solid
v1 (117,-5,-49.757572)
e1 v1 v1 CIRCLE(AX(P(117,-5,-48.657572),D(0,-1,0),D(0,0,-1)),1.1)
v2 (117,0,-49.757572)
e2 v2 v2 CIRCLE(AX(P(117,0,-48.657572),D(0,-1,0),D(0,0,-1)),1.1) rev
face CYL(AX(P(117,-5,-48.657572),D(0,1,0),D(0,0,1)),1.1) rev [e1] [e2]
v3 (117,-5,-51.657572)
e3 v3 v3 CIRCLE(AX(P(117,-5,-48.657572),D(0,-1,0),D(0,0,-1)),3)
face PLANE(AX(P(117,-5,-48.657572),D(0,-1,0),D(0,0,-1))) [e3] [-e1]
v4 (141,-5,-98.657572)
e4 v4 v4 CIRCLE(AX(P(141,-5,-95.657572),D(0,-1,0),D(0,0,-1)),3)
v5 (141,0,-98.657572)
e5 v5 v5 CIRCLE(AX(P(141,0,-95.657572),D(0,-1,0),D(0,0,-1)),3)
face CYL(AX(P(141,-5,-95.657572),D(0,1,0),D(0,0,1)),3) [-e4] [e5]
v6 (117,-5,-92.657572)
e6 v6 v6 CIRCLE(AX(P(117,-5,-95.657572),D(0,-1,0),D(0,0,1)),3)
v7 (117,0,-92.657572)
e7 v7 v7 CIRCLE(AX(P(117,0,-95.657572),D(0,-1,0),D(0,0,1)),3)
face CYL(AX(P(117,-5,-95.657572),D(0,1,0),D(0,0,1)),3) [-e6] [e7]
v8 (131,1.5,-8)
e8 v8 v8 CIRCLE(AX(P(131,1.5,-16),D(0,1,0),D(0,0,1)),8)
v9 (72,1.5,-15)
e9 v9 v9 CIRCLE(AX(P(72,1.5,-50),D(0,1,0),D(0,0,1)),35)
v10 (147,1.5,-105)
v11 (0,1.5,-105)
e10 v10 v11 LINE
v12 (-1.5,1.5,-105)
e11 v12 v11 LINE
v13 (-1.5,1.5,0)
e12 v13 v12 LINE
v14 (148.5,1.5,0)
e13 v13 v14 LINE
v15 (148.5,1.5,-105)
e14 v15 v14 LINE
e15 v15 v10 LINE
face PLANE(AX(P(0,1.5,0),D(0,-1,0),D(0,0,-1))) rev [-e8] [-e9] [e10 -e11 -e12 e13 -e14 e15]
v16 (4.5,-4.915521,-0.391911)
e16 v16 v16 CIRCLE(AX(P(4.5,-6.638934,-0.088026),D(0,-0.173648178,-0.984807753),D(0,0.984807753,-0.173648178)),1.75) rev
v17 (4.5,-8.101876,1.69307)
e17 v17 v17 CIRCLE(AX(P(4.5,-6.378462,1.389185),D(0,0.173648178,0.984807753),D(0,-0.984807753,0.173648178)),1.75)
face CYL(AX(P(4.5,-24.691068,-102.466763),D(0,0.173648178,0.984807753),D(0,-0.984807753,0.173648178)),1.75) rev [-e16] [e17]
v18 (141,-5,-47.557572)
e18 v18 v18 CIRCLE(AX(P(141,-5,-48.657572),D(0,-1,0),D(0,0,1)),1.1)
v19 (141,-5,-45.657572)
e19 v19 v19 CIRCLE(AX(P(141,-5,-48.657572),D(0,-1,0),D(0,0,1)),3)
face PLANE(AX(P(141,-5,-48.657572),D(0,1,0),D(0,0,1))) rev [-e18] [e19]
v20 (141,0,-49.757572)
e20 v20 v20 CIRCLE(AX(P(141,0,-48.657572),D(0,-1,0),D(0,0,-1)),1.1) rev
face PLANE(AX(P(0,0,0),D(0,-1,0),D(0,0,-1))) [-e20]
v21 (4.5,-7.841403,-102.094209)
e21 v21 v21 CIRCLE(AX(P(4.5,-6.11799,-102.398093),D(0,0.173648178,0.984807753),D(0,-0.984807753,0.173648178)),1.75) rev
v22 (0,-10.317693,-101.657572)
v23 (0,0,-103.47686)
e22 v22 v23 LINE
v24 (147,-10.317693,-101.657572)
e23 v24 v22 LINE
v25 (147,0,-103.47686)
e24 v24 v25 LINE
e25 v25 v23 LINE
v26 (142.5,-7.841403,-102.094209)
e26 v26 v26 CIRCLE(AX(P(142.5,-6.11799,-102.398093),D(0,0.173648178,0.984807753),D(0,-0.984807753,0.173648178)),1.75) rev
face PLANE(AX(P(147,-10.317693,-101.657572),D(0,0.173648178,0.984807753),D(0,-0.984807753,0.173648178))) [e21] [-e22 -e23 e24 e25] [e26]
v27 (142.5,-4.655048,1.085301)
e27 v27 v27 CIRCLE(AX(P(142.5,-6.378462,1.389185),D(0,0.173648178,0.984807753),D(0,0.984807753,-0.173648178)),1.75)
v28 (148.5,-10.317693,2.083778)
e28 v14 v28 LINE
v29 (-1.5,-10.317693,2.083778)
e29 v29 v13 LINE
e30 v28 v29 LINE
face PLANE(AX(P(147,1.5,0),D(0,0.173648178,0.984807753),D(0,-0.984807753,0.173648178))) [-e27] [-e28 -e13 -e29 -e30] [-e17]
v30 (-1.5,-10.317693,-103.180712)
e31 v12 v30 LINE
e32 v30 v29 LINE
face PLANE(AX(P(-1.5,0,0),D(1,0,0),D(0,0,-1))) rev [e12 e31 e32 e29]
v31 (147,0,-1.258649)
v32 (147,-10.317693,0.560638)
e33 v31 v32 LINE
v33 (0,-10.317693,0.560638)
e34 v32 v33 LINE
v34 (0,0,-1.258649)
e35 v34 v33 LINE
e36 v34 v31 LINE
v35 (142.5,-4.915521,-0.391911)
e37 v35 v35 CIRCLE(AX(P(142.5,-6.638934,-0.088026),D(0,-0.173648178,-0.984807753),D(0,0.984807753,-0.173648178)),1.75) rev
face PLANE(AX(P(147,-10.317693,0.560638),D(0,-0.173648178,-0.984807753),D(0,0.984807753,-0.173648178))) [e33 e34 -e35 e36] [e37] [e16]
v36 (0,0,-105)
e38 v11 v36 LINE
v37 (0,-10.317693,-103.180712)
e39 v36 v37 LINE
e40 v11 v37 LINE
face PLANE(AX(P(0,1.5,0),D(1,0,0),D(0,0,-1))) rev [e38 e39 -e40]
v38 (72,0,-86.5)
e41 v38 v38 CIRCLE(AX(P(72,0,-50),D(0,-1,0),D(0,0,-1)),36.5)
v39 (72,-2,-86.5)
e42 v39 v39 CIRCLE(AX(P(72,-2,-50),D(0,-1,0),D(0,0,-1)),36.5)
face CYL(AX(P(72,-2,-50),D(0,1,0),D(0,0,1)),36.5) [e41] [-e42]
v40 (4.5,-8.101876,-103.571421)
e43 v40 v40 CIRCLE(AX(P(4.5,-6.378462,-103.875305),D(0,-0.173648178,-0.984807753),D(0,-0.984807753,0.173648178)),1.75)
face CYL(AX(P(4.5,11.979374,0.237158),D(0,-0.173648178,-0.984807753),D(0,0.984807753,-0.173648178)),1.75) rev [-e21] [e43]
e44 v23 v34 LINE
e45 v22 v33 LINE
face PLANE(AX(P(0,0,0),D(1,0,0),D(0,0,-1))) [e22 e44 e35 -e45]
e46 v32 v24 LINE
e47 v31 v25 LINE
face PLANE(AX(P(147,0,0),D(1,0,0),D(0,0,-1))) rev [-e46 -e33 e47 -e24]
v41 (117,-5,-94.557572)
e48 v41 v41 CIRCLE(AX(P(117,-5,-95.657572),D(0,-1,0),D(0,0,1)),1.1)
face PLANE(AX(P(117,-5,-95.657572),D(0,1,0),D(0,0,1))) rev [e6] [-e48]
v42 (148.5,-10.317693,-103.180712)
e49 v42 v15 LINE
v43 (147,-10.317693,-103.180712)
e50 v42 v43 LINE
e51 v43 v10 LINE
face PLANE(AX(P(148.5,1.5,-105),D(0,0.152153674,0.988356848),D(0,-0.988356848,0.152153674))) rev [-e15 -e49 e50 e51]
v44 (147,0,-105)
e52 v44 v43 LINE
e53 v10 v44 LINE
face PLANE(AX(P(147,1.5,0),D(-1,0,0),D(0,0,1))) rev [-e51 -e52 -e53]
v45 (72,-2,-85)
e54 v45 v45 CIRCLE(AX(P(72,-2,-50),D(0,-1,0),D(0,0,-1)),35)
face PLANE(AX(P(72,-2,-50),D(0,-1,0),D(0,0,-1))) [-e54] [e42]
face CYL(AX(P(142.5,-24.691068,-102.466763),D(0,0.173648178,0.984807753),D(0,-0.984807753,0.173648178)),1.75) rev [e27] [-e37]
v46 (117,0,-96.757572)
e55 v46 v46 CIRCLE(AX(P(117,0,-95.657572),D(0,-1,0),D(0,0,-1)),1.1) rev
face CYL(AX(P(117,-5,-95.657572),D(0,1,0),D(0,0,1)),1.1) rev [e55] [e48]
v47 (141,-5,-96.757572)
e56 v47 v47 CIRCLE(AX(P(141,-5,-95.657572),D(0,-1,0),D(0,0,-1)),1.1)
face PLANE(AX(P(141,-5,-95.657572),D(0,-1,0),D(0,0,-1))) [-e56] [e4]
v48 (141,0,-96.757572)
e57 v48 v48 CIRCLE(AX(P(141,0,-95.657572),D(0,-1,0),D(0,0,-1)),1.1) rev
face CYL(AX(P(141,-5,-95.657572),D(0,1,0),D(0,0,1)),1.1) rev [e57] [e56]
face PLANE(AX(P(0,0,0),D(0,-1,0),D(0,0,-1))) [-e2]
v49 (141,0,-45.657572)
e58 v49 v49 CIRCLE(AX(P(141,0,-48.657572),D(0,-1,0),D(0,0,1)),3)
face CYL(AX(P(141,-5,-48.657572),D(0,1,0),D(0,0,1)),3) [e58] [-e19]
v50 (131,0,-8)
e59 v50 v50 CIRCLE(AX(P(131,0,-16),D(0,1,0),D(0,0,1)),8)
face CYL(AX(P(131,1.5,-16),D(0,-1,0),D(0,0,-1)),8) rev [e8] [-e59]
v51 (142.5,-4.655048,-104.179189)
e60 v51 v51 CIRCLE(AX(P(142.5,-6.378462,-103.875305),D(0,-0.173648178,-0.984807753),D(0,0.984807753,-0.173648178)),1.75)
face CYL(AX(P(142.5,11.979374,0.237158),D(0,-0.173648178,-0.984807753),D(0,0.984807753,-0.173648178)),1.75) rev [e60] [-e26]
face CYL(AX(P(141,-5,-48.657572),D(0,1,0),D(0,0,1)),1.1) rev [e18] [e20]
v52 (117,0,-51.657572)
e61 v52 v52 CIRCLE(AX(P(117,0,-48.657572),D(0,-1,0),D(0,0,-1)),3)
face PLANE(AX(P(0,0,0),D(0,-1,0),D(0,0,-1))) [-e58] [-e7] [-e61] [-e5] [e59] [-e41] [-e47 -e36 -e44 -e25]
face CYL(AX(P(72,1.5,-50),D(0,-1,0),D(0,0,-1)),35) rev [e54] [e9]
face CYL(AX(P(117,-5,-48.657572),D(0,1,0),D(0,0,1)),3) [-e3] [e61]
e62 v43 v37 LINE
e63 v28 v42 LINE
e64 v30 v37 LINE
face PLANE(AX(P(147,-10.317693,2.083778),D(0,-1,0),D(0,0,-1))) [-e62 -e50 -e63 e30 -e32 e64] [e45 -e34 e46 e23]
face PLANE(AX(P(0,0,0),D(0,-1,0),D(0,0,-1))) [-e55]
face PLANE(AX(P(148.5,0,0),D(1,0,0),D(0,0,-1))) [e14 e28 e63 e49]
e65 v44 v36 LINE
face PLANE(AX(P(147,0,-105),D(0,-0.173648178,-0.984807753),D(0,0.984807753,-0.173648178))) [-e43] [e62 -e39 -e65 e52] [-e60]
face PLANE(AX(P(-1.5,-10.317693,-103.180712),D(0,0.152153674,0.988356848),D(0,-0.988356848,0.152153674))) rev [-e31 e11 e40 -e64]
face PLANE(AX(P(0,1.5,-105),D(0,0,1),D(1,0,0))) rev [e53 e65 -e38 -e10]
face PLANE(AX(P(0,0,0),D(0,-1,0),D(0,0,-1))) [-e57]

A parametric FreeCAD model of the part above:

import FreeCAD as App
import Part
import Sketcher
Q = App.Units.Quantity

doc = App.newDocument("Part")
body = doc.addObject("PartDesign::Body", "Body")

sketch1 = doc.addObject("Sketcher::SketchObject", "Sketch")
body.addObject(sketch1)
sketch1.AttachmentSupport = (doc.XZ_Plane, [""])
sketch1.MapMode = "FlatFace"
sketch1.addGeometry(Part.LineSegment(App.Vector(0, -105, 0), App.Vector(0, 0, 0)), False)
sketch1.addGeometry(Part.LineSegment(App.Vector(0, 0, 0), App.Vector(147, 0, 0)), False)
sketch1.addGeometry(Part.LineSegment(App.Vector(147, 0, 0), App.Vector(147, -105, 0)), False)
sketch1.addGeometry(Part.LineSegment(App.Vector(147, -105, 0), App.Vector(0, -105, 0)), False)
sketch1.addGeometry(Part.Circle(App.Vector(131, -16, 0), App.Vector(0, 0, 1), 8), False)
sketch1.addGeometry(Part.Circle(App.Vector(72, -50, 0), App.Vector(0, 0, 1), 35), False)
sketch1.addConstraint(Sketcher.Constraint("Coincident", 0, 2, 1, 1))
sketch1.addConstraint(Sketcher.Constraint("Coincident", 1, 2, 2, 1))
sketch1.addConstraint(Sketcher.Constraint("Coincident", 2, 2, 3, 1))
sketch1.addConstraint(Sketcher.Constraint("Coincident", 3, 2, 0, 1))
sketch1.addConstraint(Sketcher.Constraint("Vertical", 0))
sketch1.addConstraint(Sketcher.Constraint("Horizontal", 1))
sketch1.addConstraint(Sketcher.Constraint("Vertical", 2))
sketch1.addConstraint(Sketcher.Constraint("Horizontal", 3))
sketch1.addConstraint(Sketcher.Constraint("Coincident", 0, 2, -1, 1))
sketch1.addConstraint(Sketcher.Constraint("Diameter", 4, 16.0))
sketch1.addConstraint(Sketcher.Constraint("Diameter", 5, 70.0))
sketch1.addConstraint(Sketcher.Constraint("DistanceX", 1, 1, 1, 2, 147.0))
sketch1.addConstraint(Sketcher.Constraint("DistanceY", 0, 1, 0, 2, 105.0))
sketch1.addConstraint(Sketcher.Constraint("DistanceX", -1, 1, 4, 3, 131.0))
sketch1.addConstraint(Sketcher.Constraint("DistanceY", 4, 3, -1, 1, 16.0))
sketch1.addConstraint(Sketcher.Constraint("DistanceX", -1, 1, 5, 3, 72.0))
sketch1.addConstraint(Sketcher.Constraint("DistanceY", 5, 3, -1, 1, 50.0))
pad1 = doc.addObject("PartDesign::Pad", "Pad")
body.addObject(pad1)
pad1.Profile = sketch1
pad1.Length = 1.5
pad1.Reversed = True

sketch2 = doc.addObject("Sketcher::SketchObject", "Sketch001")
body.addObject(sketch2)
sketch2.AttachmentSupport = (doc.YZ_Plane, [""])
sketch2.MapMode = "FlatFace"
sketch2.addGeometry(Part.LineSegment(App.Vector(-10.317693, 2.083778, 0), App.Vector(1.5, 0, 0)), False)
sketch2.addGeometry(Part.LineSegment(App.Vector(1.5, 0, 0), App.Vector(1.5, -1.52314, 0)), False)
sketch2.addGeometry(Part.LineSegment(App.Vector(1.5, -1.52314, 0), App.Vector(-10.317693, 0.560638, 0)), False)
sketch2.addGeometry(Part.LineSegment(App.Vector(-10.317693, 0.560638, 0), App.Vector(-10.317693, 2.083778, 0)), False)
sketch2.addGeometry(Part.LineSegment(App.Vector(0, -105, 0), App.Vector(-10.317693, -103.180712, 0)), False)
sketch2.addGeometry(Part.LineSegment(App.Vector(-10.317693, -103.180712, 0), App.Vector(-10.317693, -101.657572, 0)), False)
sketch2.addGeometry(Part.LineSegment(App.Vector(-10.317693, -101.657572, 0), App.Vector(1.5, -103.741351, 0)), False)
sketch2.addGeometry(Part.LineSegment(App.Vector(1.5, -103.741351, 0), App.Vector(0, -105, 0)), False)
sketch2.addConstraint(Sketcher.Constraint("Coincident", 0, 2, 1, 1))
sketch2.addConstraint(Sketcher.Constraint("Coincident", 1, 2, 2, 1))
sketch2.addConstraint(Sketcher.Constraint("Coincident", 2, 2, 3, 1))
sketch2.addConstraint(Sketcher.Constraint("Coincident", 3, 2, 0, 1))
sketch2.addConstraint(Sketcher.Constraint("Coincident", 4, 2, 5, 1))
sketch2.addConstraint(Sketcher.Constraint("Coincident", 5, 2, 6, 1))
sketch2.addConstraint(Sketcher.Constraint("Coincident", 6, 2, 7, 1))
sketch2.addConstraint(Sketcher.Constraint("Coincident", 7, 2, 4, 1))
sketch2.addConstraint(Sketcher.Constraint("Vertical", 1))
sketch2.addConstraint(Sketcher.Constraint("Vertical", 3))
sketch2.addConstraint(Sketcher.Constraint("Vertical", 5))
sketch2.addConstraint(Sketcher.Constraint("PointOnObject", 0, 2, -1))
sketch2.addConstraint(Sketcher.Constraint("PointOnObject", 7, 2, -2))
sketch2.addConstraint(Sketcher.Constraint("Parallel", 0, 2))
sketch2.addConstraint(Sketcher.Constraint("Parallel", 2, 4))
sketch2.addConstraint(Sketcher.Constraint("Parallel", 4, 6))
sketch2.addConstraint(Sketcher.Constraint("Vertical", 3, 2, 4, 2))
sketch2.addConstraint(Sketcher.Constraint("Vertical", 1, 2, 6, 2))
sketch2.addConstraint(Sketcher.Constraint("Equal", 3, 5))
sketch2.addConstraint(Sketcher.Constraint("Angle", 0, Q("-10 deg")))
sketch2.addConstraint(Sketcher.Constraint("Angle", 7, Q("-140 deg")))
sketch2.addConstraint(Sketcher.Constraint("Distance", 0, 12.0))
sketch2.addConstraint(Sketcher.Constraint("DistanceY", 7, 2, -1, 1, 105.0))
sketch2.addConstraint(Sketcher.Constraint("DistanceX", -1, 1, 0, 2, 1.5))
pad2 = doc.addObject("PartDesign::Pad", "Pad001")
body.addObject(pad2)
pad2.Profile = sketch2
pad2.Length = 147

sketch3 = doc.addObject("Sketcher::SketchObject", "Sketch002")
body.addObject(sketch3)
sketch3.AttachmentSupport = (doc.YZ_Plane, [""])
sketch3.MapMode = "FlatFace"
sketch3.AttachmentOffset = App.Placement(App.Vector(0, 0, 147), App.Rotation())
sketch3.addGeometry(Part.LineSegment(App.Vector(1.5, 0, 0), App.Vector(-10.317693, 2.083778, 0)), False)
sketch3.addGeometry(Part.LineSegment(App.Vector(-10.317693, 2.083778, 0), App.Vector(-10.317693, -103.180712, 0)), False)
sketch3.addGeometry(Part.LineSegment(App.Vector(-10.317693, -103.180712, 0), App.Vector(1.5, -105, 0)), False)
sketch3.addGeometry(Part.LineSegment(App.Vector(1.5, -105, 0), App.Vector(1.5, 0, 0)), False)
sketch3.addConstraint(Sketcher.Constraint("Coincident", 0, 2, 1, 1))
sketch3.addConstraint(Sketcher.Constraint("Coincident", 1, 2, 2, 1))
sketch3.addConstraint(Sketcher.Constraint("Coincident", 2, 2, 3, 1))
sketch3.addConstraint(Sketcher.Constraint("Coincident", 3, 2, 0, 1))
sketch3.addConstraint(Sketcher.Constraint("Vertical", 1))
sketch3.addConstraint(Sketcher.Constraint("Vertical", 3))
sketch3.addConstraint(Sketcher.Constraint("PointOnObject", 3, 2, -1))
sketch3.addConstraint(Sketcher.Constraint("DistanceY", 3, 1, 3, 2, 105.0))
sketch3.addConstraint(Sketcher.Constraint("Angle", 0, Q("170 deg")))
sketch3.addConstraint(Sketcher.Constraint("Distance", 0, 12.0))
sketch3.addConstraint(Sketcher.Constraint("DistanceX", -1, 1, 2, 2, 1.5))
sketch3.addConstraint(Sketcher.Constraint("DistanceY", 1, 2, 1, 1, 105.26449))
pad3 = doc.addObject("PartDesign::Pad", "Pad002")
body.addObject(pad3)
pad3.Profile = sketch3
pad3.Length = 1.5

sketch4 = doc.addObject("Sketcher::SketchObject", "Sketch003")
body.addObject(sketch4)
sketch4.AttachmentSupport = (doc.YZ_Plane, [""])
sketch4.MapMode = "FlatFace"
sketch4.addGeometry(Part.LineSegment(App.Vector(1.5, -105, 0), App.Vector(-10.317693, -103.180712, 0)), False)
sketch4.addGeometry(Part.LineSegment(App.Vector(-10.317693, -103.180712, 0), App.Vector(-10.317693, 2.083778, 0)), False)
sketch4.addGeometry(Part.LineSegment(App.Vector(-10.317693, 2.083778, 0), App.Vector(1.5, 0, 0)), False)
sketch4.addGeometry(Part.LineSegment(App.Vector(1.5, 0, 0), App.Vector(1.5, -105, 0)), False)
sketch4.addConstraint(Sketcher.Constraint("Coincident", 0, 2, 1, 1))
sketch4.addConstraint(Sketcher.Constraint("Coincident", 1, 2, 2, 1))
sketch4.addConstraint(Sketcher.Constraint("Coincident", 2, 2, 3, 1))
sketch4.addConstraint(Sketcher.Constraint("Coincident", 3, 2, 0, 1))
sketch4.addConstraint(Sketcher.Constraint("Vertical", 1))
sketch4.addConstraint(Sketcher.Constraint("Vertical", 3))
sketch4.addConstraint(Sketcher.Constraint("PointOnObject", 2, 2, -1))
sketch4.addConstraint(Sketcher.Constraint("DistanceY", 3, 2, 3, 1, 105.0))
sketch4.addConstraint(Sketcher.Constraint("Angle", 2, Q("-10 deg")))
sketch4.addConstraint(Sketcher.Constraint("Distance", 2, 12.0))
sketch4.addConstraint(Sketcher.Constraint("DistanceX", -1, 1, 2, 2, 1.5))
sketch4.addConstraint(Sketcher.Constraint("DistanceY", 1, 1, 1, 2, 105.26449))
pad4 = doc.addObject("PartDesign::Pad", "Pad003")
body.addObject(pad4)
pad4.Profile = sketch4
pad4.Length = 1.5
pad4.Reversed = True

sketch5 = doc.addObject("Sketcher::SketchObject", "Sketch004")
body.addObject(sketch5)
sketch5.AttachmentSupport = (doc.XZ_Plane, [""])
sketch5.MapMode = "FlatFace"
sketch5.addGeometry(Part.Circle(App.Vector(141, -95.657572, 0), App.Vector(0, 0, 1), 3), False)
sketch5.addGeometry(Part.Circle(App.Vector(141, -95.657572, 0), App.Vector(0, 0, 1), 1.1), False)
sketch5.addGeometry(Part.Circle(App.Vector(117, -95.657572, 0), App.Vector(0, 0, 1), 3), False)
sketch5.addGeometry(Part.Circle(App.Vector(117, -95.657572, 0), App.Vector(0, 0, 1), 1.1), False)
sketch5.addGeometry(Part.Circle(App.Vector(117, -48.657572, 0), App.Vector(0, 0, 1), 3), False)
sketch5.addGeometry(Part.Circle(App.Vector(117, -48.657572, 0), App.Vector(0, 0, 1), 1.1), False)
sketch5.addGeometry(Part.Circle(App.Vector(141, -48.657572, 0), App.Vector(0, 0, 1), 3), False)
sketch5.addGeometry(Part.Circle(App.Vector(141, -48.657572, 0), App.Vector(0, 0, 1), 1.1), False)
sketch5.addConstraint(Sketcher.Constraint("Coincident", 1, 3, 0, 3))
sketch5.addConstraint(Sketcher.Constraint("Coincident", 3, 3, 2, 3))
sketch5.addConstraint(Sketcher.Constraint("Coincident", 5, 3, 4, 3))
sketch5.addConstraint(Sketcher.Constraint("Coincident", 7, 3, 6, 3))
sketch5.addConstraint(Sketcher.Constraint("Equal", 0, 2))
sketch5.addConstraint(Sketcher.Constraint("Equal", 1, 3))
sketch5.addConstraint(Sketcher.Constraint("Equal", 2, 4))
sketch5.addConstraint(Sketcher.Constraint("Equal", 3, 5))
sketch5.addConstraint(Sketcher.Constraint("Equal", 4, 6))
sketch5.addConstraint(Sketcher.Constraint("Equal", 5, 7))
sketch5.addConstraint(Sketcher.Constraint("Horizontal", 1, 3, 2, 3))
sketch5.addConstraint(Sketcher.Constraint("Horizontal", 5, 3, 6, 3))
sketch5.addConstraint(Sketcher.Constraint("Vertical", 3, 3, 4, 3))
sketch5.addConstraint(Sketcher.Constraint("Vertical", 1, 3, 6, 3))
sketch5.addConstraint(Sketcher.Constraint("Diameter", 0, 6.0))
sketch5.addConstraint(Sketcher.Constraint("Diameter", 1, 2.2))
sketch5.addConstraint(Sketcher.Constraint("DistanceX", -1, 1, 0, 3, 141.0))
sketch5.addConstraint(Sketcher.Constraint("DistanceX", -1, 1, 2, 3, 117.0))
sketch5.addConstraint(Sketcher.Constraint("DistanceY", 2, 3, 4, 3, 47.0))
sketch5.addConstraint(Sketcher.Constraint("DistanceY", 0, 3, -1, 1, 95.657572))
pad5 = doc.addObject("PartDesign::Pad", "Pad004")
body.addObject(pad5)
pad5.Profile = sketch5
pad5.Length = 5

sketch6 = doc.addObject("Sketcher::SketchObject", "Sketch005")
body.addObject(sketch6)
sketch6.Placement = App.Placement(App.Vector(0, -17.956058, -101.833863), App.Rotation(App.Vector(-1, 0, 0), App.Vector(0, 0.984807753, -0.173648178), App.Vector(0, -0.173648178, -0.984807753), "ZXY"))
sketch6.addGeometry(Part.Circle(App.Vector(-142.5, 11.756199, 0), App.Vector(0, 0, 1), 1.75), False)
sketch6.addConstraint(Sketcher.Constraint("Diameter", 0, 3.5))
sketch6.addConstraint(Sketcher.Constraint("DistanceX", 0, 3, -1, 1, 142.5))
sketch6.addConstraint(Sketcher.Constraint("DistanceY", -1, 1, 0, 3, 11.756199))
pocket1 = doc.addObject("PartDesign::Pocket", "Pocket")
body.addObject(pocket1)
pocket1.Profile = sketch6
pocket1.Type = "UpToFirst"

sketch7 = doc.addObject("Sketcher::SketchObject", "Sketch006")
body.addObject(sketch7)
sketch7.Placement = App.Placement(App.Vector(0, -17.956058, -101.833863), App.Rotation(App.Vector(-1, 0, 0), App.Vector(0, 0.984807753, -0.173648178), App.Vector(0, -0.173648178, -0.984807753), "ZXY"))
sketch7.addGeometry(Part.Circle(App.Vector(-4.5, 11.756199, 0), App.Vector(0, 0, 1), 1.75), False)
sketch7.addConstraint(Sketcher.Constraint("Diameter", 0, 3.5))
sketch7.addConstraint(Sketcher.Constraint("DistanceX", 0, 3, -1, 1, 4.5))
sketch7.addConstraint(Sketcher.Constraint("DistanceY", -1, 1, 0, 3, 11.756199))
pocket2 = doc.addObject("PartDesign::Pocket", "Pocket001")
body.addObject(pocket2)
pocket2.Profile = sketch7
pocket2.Type = "UpToFirst"

sketch8 = doc.addObject("Sketcher::SketchObject", "Sketch007")
body.addObject(sketch8)
sketch8.Placement = App.Placement(App.Vector(0, 0.045231, 0.256515), App.Rotation(App.Vector(1, 0, 0), App.Vector(0, 0.984807753, -0.173648178), App.Vector(0, 0.173648178, 0.984807753), "ZXY"))
sketch8.addGeometry(Part.Circle(App.Vector(4.5, -6.522788, 0), App.Vector(0, 0, 1), 1.75), False)
sketch8.addConstraint(Sketcher.Constraint("Diameter", 0, 3.5))
sketch8.addConstraint(Sketcher.Constraint("DistanceX", -1, 1, 0, 3, 4.5))
sketch8.addConstraint(Sketcher.Constraint("DistanceY", 0, 3, -1, 1, 6.522788))
pocket3 = doc.addObject("PartDesign::Pocket", "Pocket002")
body.addObject(pocket3)
pocket3.Profile = sketch8
pocket3.Type = "UpToFirst"

sketch9 = doc.addObject("Sketcher::SketchObject", "Sketch008")
body.addObject(sketch9)
sketch9.Placement = App.Placement(App.Vector(0, 0.045231, 0.256515), App.Rotation(App.Vector(1, 0, 0), App.Vector(0, 0.984807753, -0.173648178), App.Vector(0, 0.173648178, 0.984807753), "ZXY"))
sketch9.addGeometry(Part.Circle(App.Vector(142.5, -6.522788, 0), App.Vector(0, 0, 1), 1.75), False)
sketch9.addConstraint(Sketcher.Constraint("Diameter", 0, 3.5))
sketch9.addConstraint(Sketcher.Constraint("DistanceX", -1, 1, 0, 3, 142.5))
sketch9.addConstraint(Sketcher.Constraint("DistanceY", 0, 3, -1, 1, 6.522788))
pocket4 = doc.addObject("PartDesign::Pocket", "Pocket003")
body.addObject(pocket4)
pocket4.Profile = sketch9
pocket4.Type = "UpToFirst"

sketch10 = doc.addObject("Sketcher::SketchObject", "Sketch009")
body.addObject(sketch10)
sketch10.AttachmentSupport = (doc.XZ_Plane, [""])
sketch10.MapMode = "FlatFace"
sketch10.AttachmentOffset = App.Placement(App.Vector(0, 0, 2), App.Rotation())
sketch10.addGeometry(Part.Circle(App.Vector(72, -50, 0), App.Vector(0, 0, 1), 36.5), False)
sketch10.addGeometry(Part.Circle(App.Vector(72, -50, 0), App.Vector(0, 0, 1), 35), False)
sketch10.addConstraint(Sketcher.Constraint("Coincident", 1, 3, 0, 3))
sketch10.addConstraint(Sketcher.Constraint("Diameter", 0, 73.0))
sketch10.addConstraint(Sketcher.Constraint("Diameter", 1, 70.0))
sketch10.addConstraint(Sketcher.Constraint("DistanceX", -1, 1, 0, 3, 72.0))
sketch10.addConstraint(Sketcher.Constraint("DistanceY", 0, 3, -1, 1, 50.0))
pad6 = doc.addObject("PartDesign::Pad", "Pad005")
body.addObject(pad6)
pad6.Profile = sketch10
pad6.Length = 2
pad6.Reversed = True

doc.recompute()
